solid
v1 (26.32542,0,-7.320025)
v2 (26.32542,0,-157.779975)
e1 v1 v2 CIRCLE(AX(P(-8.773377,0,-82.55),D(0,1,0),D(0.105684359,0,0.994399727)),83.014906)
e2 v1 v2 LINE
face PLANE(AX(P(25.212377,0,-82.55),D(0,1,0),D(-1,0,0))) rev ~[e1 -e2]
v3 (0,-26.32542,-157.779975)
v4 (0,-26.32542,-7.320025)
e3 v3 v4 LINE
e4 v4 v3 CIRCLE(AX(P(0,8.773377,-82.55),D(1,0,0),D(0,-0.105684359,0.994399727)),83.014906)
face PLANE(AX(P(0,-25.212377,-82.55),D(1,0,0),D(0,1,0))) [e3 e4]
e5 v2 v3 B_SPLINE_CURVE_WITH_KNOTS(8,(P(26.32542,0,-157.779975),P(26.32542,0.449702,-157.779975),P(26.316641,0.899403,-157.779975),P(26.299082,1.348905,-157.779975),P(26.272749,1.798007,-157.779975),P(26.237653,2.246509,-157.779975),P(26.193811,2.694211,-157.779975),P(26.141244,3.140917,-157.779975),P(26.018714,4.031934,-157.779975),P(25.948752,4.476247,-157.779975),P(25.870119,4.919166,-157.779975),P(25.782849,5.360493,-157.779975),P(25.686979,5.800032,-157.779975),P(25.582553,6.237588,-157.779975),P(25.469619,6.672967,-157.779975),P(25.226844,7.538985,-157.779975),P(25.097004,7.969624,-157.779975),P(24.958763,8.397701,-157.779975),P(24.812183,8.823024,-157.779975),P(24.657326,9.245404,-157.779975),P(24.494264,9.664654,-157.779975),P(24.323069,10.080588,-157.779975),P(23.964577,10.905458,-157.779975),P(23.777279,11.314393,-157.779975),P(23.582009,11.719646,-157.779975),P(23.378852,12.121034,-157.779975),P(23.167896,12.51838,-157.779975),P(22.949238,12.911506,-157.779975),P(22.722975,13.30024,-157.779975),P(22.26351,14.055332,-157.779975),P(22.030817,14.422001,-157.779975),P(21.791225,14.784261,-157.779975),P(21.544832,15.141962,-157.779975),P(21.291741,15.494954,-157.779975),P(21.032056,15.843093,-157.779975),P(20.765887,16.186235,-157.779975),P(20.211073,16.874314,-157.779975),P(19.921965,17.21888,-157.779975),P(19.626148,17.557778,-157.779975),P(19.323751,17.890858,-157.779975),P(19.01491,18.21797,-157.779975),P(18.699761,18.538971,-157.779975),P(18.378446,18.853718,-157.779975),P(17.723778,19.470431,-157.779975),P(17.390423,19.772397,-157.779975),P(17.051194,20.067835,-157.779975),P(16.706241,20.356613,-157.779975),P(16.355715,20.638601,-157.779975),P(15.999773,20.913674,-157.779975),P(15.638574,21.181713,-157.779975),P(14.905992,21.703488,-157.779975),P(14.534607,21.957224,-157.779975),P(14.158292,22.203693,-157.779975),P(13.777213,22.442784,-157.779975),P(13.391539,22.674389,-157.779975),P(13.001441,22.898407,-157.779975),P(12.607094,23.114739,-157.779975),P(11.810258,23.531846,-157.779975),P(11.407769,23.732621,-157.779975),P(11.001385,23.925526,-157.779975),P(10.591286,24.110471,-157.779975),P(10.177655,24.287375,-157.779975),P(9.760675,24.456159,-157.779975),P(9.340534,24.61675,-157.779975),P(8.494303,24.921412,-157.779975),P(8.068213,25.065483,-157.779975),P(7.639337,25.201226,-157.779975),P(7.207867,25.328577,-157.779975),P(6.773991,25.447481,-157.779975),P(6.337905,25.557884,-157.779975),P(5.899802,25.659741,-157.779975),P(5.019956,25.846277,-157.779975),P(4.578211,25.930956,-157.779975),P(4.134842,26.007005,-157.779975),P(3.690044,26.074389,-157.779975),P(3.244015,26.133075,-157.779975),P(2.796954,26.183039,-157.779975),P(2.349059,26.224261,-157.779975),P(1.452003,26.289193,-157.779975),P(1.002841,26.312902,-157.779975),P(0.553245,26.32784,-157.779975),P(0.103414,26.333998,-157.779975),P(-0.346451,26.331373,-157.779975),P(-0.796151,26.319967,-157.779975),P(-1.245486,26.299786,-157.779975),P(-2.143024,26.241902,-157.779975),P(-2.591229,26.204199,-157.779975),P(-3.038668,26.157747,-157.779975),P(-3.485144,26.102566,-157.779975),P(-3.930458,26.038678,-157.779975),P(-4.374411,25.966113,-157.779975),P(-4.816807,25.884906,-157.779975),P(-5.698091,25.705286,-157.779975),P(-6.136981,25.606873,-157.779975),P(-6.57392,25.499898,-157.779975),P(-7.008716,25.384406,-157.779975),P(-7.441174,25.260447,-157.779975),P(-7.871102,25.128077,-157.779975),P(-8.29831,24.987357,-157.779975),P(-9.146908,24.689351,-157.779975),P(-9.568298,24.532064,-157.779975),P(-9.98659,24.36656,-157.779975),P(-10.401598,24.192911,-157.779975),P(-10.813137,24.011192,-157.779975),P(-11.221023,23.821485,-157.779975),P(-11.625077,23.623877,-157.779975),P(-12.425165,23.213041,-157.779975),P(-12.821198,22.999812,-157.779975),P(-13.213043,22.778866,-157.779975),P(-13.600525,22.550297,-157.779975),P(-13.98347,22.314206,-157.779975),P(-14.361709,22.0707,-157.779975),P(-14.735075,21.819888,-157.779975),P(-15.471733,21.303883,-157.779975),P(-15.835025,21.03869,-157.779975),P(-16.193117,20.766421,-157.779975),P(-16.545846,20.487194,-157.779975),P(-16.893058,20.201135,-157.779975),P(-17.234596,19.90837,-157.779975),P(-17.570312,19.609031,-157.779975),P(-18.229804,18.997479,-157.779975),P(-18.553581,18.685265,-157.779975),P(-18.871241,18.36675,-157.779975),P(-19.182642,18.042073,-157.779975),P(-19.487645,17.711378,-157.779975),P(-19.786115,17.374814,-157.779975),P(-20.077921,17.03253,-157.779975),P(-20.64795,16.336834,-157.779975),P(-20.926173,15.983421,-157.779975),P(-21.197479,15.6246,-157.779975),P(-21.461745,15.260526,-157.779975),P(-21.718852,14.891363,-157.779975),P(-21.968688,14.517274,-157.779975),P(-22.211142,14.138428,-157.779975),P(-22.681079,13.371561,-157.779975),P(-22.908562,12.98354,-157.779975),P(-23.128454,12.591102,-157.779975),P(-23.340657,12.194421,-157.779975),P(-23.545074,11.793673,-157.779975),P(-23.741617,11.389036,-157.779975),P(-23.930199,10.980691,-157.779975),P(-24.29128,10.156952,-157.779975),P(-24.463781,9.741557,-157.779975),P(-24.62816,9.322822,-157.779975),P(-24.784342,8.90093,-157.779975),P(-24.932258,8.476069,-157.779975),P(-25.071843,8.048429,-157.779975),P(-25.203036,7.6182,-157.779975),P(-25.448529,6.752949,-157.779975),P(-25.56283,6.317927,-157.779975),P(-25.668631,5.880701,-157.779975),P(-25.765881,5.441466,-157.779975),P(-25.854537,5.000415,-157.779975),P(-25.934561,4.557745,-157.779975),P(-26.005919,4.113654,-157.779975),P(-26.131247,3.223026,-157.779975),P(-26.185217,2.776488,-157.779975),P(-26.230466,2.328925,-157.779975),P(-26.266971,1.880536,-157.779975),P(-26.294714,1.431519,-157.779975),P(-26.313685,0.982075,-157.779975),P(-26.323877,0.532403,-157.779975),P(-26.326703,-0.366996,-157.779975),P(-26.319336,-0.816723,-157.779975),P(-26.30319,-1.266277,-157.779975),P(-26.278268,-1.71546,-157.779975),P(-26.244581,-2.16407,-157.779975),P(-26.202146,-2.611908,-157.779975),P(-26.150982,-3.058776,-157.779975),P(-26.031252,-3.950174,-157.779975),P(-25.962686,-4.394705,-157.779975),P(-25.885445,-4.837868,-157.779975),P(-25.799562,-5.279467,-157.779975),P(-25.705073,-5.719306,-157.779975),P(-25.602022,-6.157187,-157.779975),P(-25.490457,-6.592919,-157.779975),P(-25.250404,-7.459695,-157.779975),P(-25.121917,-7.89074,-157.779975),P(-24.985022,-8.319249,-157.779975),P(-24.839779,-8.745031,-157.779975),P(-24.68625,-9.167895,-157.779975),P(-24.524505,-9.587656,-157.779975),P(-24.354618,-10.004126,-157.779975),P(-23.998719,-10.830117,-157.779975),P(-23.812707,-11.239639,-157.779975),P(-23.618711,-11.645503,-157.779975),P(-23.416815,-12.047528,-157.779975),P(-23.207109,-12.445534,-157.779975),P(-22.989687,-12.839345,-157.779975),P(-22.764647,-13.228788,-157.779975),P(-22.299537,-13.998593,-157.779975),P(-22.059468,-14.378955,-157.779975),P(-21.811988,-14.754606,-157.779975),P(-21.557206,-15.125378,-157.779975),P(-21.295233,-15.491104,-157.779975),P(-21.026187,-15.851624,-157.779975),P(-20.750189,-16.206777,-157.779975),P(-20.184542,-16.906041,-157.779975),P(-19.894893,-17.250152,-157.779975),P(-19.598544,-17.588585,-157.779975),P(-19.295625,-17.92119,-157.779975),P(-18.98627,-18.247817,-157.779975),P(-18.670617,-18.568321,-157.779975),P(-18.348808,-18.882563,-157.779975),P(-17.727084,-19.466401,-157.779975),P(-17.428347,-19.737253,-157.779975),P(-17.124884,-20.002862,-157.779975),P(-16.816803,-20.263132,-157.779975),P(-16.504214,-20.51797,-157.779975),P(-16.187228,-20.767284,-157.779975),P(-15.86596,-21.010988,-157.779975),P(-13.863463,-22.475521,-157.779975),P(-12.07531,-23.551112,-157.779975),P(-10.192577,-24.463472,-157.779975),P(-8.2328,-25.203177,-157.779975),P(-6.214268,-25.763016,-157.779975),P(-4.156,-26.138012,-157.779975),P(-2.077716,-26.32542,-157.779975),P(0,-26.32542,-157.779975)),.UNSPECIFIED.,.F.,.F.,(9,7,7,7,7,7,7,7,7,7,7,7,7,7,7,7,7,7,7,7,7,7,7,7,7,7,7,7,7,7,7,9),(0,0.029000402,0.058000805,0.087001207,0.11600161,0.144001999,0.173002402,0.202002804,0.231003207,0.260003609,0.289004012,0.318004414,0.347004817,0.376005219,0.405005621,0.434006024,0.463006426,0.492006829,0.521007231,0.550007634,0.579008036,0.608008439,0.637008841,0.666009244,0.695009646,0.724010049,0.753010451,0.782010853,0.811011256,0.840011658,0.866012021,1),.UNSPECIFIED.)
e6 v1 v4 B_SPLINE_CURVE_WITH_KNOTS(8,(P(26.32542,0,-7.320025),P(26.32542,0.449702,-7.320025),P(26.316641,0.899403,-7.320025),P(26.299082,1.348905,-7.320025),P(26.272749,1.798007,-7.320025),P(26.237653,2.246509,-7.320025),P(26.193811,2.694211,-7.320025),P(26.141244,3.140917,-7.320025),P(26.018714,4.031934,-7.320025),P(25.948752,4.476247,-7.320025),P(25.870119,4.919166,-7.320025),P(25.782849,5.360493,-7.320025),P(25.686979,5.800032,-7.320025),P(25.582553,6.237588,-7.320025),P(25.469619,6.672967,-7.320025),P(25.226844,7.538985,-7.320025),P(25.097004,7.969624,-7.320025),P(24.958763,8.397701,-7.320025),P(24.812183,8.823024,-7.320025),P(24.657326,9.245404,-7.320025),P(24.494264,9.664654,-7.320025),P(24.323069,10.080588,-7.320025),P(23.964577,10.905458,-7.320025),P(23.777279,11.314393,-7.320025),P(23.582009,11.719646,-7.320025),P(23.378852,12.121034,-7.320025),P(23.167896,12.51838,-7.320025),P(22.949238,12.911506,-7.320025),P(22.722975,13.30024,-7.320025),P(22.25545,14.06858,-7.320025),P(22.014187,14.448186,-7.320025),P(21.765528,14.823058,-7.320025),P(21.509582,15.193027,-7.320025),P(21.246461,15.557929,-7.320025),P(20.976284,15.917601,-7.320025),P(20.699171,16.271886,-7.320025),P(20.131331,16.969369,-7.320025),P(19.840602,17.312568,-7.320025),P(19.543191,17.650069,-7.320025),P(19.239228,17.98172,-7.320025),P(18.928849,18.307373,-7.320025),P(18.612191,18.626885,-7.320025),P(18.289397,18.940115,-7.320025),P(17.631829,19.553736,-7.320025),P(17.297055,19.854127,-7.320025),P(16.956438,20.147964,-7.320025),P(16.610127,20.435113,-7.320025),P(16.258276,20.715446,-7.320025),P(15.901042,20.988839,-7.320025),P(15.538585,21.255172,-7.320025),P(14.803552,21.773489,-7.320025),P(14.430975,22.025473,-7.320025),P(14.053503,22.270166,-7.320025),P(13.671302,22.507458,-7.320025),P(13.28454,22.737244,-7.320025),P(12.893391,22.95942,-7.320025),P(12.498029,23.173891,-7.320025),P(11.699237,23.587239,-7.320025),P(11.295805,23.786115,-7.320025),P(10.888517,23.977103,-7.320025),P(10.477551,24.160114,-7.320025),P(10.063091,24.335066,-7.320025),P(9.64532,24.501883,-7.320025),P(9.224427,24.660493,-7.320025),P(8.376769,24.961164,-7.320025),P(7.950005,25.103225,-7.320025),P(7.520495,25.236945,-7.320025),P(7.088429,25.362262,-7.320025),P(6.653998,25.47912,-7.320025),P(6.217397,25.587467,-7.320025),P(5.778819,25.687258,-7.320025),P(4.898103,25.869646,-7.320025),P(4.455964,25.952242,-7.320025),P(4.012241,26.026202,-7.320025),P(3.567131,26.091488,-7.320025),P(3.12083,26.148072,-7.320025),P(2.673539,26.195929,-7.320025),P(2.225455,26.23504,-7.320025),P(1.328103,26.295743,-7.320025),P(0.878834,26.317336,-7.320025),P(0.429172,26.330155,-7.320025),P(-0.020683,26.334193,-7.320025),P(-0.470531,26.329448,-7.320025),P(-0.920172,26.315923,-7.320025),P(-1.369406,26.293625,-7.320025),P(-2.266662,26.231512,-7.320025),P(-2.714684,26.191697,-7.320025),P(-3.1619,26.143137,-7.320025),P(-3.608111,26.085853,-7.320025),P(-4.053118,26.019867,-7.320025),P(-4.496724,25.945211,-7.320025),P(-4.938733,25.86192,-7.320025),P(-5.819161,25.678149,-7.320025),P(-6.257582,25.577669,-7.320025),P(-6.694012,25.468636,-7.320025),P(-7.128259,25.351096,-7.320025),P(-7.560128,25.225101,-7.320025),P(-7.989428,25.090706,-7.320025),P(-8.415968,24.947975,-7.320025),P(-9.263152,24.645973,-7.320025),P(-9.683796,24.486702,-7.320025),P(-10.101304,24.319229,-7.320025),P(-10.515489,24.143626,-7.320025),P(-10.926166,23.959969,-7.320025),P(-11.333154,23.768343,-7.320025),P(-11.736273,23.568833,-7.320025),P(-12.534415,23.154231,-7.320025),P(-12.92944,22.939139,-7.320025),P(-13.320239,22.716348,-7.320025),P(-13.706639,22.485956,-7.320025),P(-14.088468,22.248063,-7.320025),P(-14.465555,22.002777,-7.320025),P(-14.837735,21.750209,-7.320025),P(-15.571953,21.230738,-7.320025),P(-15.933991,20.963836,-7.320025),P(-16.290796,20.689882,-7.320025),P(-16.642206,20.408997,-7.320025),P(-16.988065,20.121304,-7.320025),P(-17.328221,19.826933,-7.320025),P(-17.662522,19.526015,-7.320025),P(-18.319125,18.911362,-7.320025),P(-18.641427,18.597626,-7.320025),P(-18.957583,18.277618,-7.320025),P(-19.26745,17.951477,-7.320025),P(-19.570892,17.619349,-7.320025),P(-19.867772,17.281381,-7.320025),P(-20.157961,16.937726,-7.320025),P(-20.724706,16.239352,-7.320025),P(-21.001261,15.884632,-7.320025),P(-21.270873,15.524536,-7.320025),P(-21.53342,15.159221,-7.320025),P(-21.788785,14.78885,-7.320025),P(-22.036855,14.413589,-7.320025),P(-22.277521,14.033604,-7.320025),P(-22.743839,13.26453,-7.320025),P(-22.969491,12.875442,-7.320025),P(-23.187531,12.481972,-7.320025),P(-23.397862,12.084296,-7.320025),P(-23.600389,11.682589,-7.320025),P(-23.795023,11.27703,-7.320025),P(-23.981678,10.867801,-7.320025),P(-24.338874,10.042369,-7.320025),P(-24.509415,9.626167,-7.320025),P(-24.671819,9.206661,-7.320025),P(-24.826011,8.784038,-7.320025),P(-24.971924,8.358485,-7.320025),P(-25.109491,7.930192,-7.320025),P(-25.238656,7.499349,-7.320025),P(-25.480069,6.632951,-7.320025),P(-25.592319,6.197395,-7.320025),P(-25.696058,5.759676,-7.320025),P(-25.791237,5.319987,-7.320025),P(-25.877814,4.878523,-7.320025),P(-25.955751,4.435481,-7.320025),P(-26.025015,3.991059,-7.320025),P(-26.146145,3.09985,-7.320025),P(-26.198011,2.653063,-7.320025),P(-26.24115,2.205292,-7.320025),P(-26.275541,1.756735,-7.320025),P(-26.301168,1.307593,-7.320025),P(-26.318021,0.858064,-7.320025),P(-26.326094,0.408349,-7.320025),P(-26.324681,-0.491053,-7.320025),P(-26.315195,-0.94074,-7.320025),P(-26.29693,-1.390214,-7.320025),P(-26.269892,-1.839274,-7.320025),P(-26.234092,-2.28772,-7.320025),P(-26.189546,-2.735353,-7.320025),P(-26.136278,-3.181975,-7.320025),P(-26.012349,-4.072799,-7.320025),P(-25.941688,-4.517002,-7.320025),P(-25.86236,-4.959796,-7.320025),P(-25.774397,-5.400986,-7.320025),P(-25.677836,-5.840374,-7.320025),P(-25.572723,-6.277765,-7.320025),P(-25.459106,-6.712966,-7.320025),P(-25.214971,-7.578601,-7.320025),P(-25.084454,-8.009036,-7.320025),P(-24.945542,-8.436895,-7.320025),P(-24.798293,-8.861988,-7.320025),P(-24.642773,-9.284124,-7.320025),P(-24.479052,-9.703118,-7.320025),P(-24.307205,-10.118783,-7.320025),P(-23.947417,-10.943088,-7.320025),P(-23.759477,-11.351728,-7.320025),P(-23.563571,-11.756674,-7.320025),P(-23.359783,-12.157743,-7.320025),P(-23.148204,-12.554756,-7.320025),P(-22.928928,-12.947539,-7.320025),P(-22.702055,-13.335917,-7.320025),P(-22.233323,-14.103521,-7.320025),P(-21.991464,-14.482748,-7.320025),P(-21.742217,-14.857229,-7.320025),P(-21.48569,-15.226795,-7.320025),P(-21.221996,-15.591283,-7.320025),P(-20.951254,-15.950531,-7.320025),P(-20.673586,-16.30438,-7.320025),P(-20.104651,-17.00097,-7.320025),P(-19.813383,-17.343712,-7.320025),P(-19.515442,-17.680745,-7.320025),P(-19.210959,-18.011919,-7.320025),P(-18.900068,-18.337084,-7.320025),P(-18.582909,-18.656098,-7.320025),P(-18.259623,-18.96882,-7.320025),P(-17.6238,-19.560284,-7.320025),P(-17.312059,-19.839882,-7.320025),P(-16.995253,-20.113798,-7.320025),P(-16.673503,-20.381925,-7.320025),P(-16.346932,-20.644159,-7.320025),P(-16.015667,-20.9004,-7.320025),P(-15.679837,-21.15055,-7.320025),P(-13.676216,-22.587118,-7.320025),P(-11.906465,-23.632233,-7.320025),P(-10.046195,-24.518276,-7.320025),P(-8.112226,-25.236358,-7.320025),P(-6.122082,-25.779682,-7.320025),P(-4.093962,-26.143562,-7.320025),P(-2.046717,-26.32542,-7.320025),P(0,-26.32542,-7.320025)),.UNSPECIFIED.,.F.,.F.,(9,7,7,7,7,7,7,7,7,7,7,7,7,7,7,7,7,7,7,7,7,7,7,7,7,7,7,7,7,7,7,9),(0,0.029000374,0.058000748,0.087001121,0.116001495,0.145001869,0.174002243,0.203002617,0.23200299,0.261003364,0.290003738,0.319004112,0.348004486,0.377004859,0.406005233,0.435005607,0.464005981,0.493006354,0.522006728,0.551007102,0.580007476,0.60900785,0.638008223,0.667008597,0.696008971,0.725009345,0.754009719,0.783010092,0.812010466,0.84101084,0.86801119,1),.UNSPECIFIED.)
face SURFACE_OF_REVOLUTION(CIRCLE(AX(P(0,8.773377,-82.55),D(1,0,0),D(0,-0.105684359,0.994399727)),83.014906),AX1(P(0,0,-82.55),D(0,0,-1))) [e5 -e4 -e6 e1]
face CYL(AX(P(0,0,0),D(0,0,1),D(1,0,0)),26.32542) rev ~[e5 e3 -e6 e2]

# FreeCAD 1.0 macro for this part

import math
import FreeCAD as App
import Part
import Sketcher
from FreeCAD import Vector
Q = App.Units.Quantity

doc = App.newDocument("Part")
params = doc.addObject("Spreadsheet::Sheet", "Params")
for row, (alias, value) in enumerate([
    ("sketch1_height", "6.5 in"),
    ("revolution_angle", "270 deg"),
], start=1):
    params.set(f"A{row}", alias)
    params.set(f"B{row}", "=" + value)
    params.setAlias(f"B{row}", alias)

body = doc.addObject("PartDesign::Body", "Body")

# Sketch on YZ plane
sketch1 = doc.addObject("Sketcher::SketchObject", "Sketch")
body.addObject(sketch1)
sketch1.AttachmentSupport = (doc.YZ_Plane, [""])
sketch1.MapMode = "FlatFace"
sketch1.addGeometry(Part.LineSegment(Vector(0, -165, 0), Vector(0, 0, 0)), False)
sketch1.addGeometry(Part.ArcOfCircle(Part.Circle(Vector(9, -83, 0), Vector(0, 0, 1), 83), math.radians(96), math.radians(264)), False)
sketch1.addConstraint(Sketcher.Constraint("Coincident", 0, 1, 1, 2))
sketch1.addConstraint(Sketcher.Constraint("Coincident", 1, 1, 0, 2))
sketch1.addConstraint(Sketcher.Constraint("Vertical", 0))
sketch1.addConstraint(Sketcher.Constraint("Coincident", 1, 1, -1, 1))
sketch1.addConstraint(Sketcher.Constraint("DistanceY", 0, 1, 0, 2, Q("6.5 in")))
sketch1.addConstraint(Sketcher.Constraint("Radius", 1, Q("83.014906 mm")))
sketch1.setExpression("Constraints[4]", "Params.sketch1_height")
revolution = doc.addObject("PartDesign::Revolution", "Revolution")
body.addObject(revolution)
revolution.Profile = sketch1
revolution.ReferenceAxis = (sketch1, ["V_Axis"])
revolution.setExpression("Angle", "Params.revolution_angle")
revolution.Reversed = True

# Sketch on XY plane
sketch2 = doc.addObject("Sketcher::SketchObject", "Sketch001")
body.addObject(sketch2)
sketch2.AttachmentSupport = (doc.XY_Plane, [""])
sketch2.MapMode = "FlatFace"
sketch2.addGeometry(Part.Circle(Vector(0, 0, 0), Vector(0, 0, 1), 26), False)
sketch2.addConstraint(Sketcher.Constraint("Coincident", 0, 3, -1, 1))
sketch2.addConstraint(Sketcher.Constraint("Diameter", 0, Q("52.65084 mm")))
pocket1 = doc.addObject("PartDesign::Pocket", "Pocket")
body.addObject(pocket1)
pocket1.Profile = sketch2
pocket1.Type = "ThroughAll"

doc.recompute()
